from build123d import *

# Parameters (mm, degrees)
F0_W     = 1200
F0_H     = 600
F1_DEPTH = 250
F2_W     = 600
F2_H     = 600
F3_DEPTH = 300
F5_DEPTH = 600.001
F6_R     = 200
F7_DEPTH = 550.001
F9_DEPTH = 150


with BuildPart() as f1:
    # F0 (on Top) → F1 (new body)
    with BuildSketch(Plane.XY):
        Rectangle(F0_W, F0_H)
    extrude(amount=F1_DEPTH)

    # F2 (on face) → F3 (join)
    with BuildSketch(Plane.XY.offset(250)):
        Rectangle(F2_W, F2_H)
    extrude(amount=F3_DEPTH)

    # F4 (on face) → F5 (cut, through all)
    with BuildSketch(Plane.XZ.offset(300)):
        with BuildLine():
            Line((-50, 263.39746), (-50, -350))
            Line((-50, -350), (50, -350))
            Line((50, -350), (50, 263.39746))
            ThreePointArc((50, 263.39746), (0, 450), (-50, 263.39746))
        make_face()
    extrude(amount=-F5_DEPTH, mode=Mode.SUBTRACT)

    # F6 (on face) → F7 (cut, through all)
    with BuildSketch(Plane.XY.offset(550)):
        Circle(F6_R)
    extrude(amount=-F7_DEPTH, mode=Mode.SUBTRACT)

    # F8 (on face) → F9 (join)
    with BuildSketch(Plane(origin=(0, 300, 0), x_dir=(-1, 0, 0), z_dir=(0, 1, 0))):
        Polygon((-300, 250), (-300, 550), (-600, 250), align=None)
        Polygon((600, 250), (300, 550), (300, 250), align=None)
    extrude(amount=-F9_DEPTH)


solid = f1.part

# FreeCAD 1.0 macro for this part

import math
import FreeCAD as App
import Part
import Sketcher


def add_polygon(sketch, points):
    """Adds a closed chain of lines whose ends are joined by coincident constraints."""
    first, n = sketch.GeometryCount, len(points)
    for a, b in zip(points, points[1:] + points[:1]):
        sketch.addGeometry(Part.LineSegment(App.Vector(*a, 0), App.Vector(*b, 0)), False)
    for i in range(n):
        sketch.addConstraint(Sketcher.Constraint("Coincident", first + i, 2, first + (i + 1) % n, 1))

doc = App.newDocument("Part")
body = doc.addObject("PartDesign::Body", "Body")

sketch1 = doc.addObject("Sketcher::SketchObject", "Sketch")
body.addObject(sketch1)
sketch1.AttachmentSupport = (doc.XY_Plane, [""])
sketch1.MapMode = "FlatFace"
add_polygon(sketch1, [(-600, 300), (-600, -300), (600, -300), (600, 300)])
sketch1.addConstraint(Sketcher.Constraint("Vertical", 0))
sketch1.addConstraint(Sketcher.Constraint("Horizontal", 1))
sketch1.addConstraint(Sketcher.Constraint("Vertical", 2))
sketch1.addConstraint(Sketcher.Constraint("Horizontal", 3))
sketch1.addConstraint(Sketcher.Constraint("Symmetric", 0, 2, 2, 2, -1, 1))
sketch1.addConstraint(Sketcher.Constraint("DistanceX", 1, 1, 1, 2, 1200.0))
sketch1.addConstraint(Sketcher.Constraint("DistanceY", 0, 2, 0, 1, 600.0))
pad1 = doc.addObject("PartDesign::Pad", "Pad")
body.addObject(pad1)
pad1.Profile = sketch1
pad1.Length = 250

sketch2 = doc.addObject("Sketcher::SketchObject", "Sketch001")
body.addObject(sketch2)
sketch2.AttachmentSupport = (doc.XY_Plane, [""])
sketch2.MapMode = "FlatFace"
sketch2.AttachmentOffset = App.Placement(App.Vector(0, 0, 250), App.Rotation())
add_polygon(sketch2, [(-300, 300), (-300, -300), (300, -300), (300, 300)])
sketch2.addConstraint(Sketcher.Constraint("Vertical", 0))
sketch2.addConstraint(Sketcher.Constraint("Horizontal", 1))
sketch2.addConstraint(Sketcher.Constraint("Vertical", 2))
sketch2.addConstraint(Sketcher.Constraint("Horizontal", 3))
sketch2.addConstraint(Sketcher.Constraint("Symmetric", 0, 2, 2, 2, -1, 1))
sketch2.addConstraint(Sketcher.Constraint("Equal", 3, 0))
sketch2.addConstraint(Sketcher.Constraint("DistanceX", 1, 1, 1, 2, 600.0))
pad2 = doc.addObject("PartDesign::Pad", "Pad001")
body.addObject(pad2)
pad2.Profile = sketch2
pad2.Length = 300

sketch3 = doc.addObject("Sketcher::SketchObject", "Sketch002")
body.addObject(sketch3)
sketch3.AttachmentSupport = (doc.XZ_Plane, [""])
sketch3.MapMode = "FlatFace"
sketch3.AttachmentOffset = App.Placement(App.Vector(0, 0, 300), App.Rotation())
sketch3.addGeometry(Part.LineSegment(App.Vector(-50, 263, 0), App.Vector(-50, -350, 0)), False)
sketch3.addGeometry(Part.LineSegment(App.Vector(-50, -350, 0), App.Vector(50, -350, 0)), False)
sketch3.addGeometry(Part.LineSegment(App.Vector(50, -350, 0), App.Vector(50, 263, 0)), False)
sketch3.addGeometry(Part.ArcOfCircle(Part.Circle(App.Vector(0, 350, 0), App.Vector(0, 0, 1), 100), math.radians(-60), math.radians(240)), False)
sketch3.addConstraint(Sketcher.Constraint("Coincident", 0, 2, 1, 1))
sketch3.addConstraint(Sketcher.Constraint("Coincident", 1, 2, 2, 1))
sketch3.addConstraint(Sketcher.Constraint("Coincident", 2, 2, 3, 1))
sketch3.addConstraint(Sketcher.Constraint("Coincident", 3, 2, 0, 1))
sketch3.addConstraint(Sketcher.Constraint("Vertical", 0))
sketch3.addConstraint(Sketcher.Constraint("Horizontal", 1))
sketch3.addConstraint(Sketcher.Constraint("Vertical", 2))
sketch3.addConstraint(Sketcher.Constraint("Symmetric", 2, 2, 3, 2, -2))
sketch3.addConstraint(Sketcher.Constraint("Radius", 3, 100.0))
sketch3.addConstraint(Sketcher.Constraint("DistanceX", 1, 1, 1, 2, 100.0))
sketch3.addConstraint(Sketcher.Constraint("DistanceY", -1, 1, 3, 3, 350.0))
sketch3.addConstraint(Sketcher.Constraint("DistanceY", 0, 2, -1, 1, 350.0))
pocket1 = doc.addObject("PartDesign::Pocket", "Pocket")
body.addObject(pocket1)
pocket1.Profile = sketch3
pocket1.Type = "ThroughAll"

sketch4 = doc.addObject("Sketcher::SketchObject", "Sketch003")
body.addObject(sketch4)
sketch4.AttachmentSupport = (doc.XY_Plane, [""])
sketch4.MapMode = "FlatFace"
sketch4.AttachmentOffset = App.Placement(App.Vector(0, 0, 550), App.Rotation())
sketch4.addGeometry(Part.Circle(App.Vector(0, 0, 0), App.Vector(0, 0, 1), 200), False)
sketch4.addConstraint(Sketcher.Constraint("Coincident", 0, 3, -1, 1))
sketch4.addConstraint(Sketcher.Constraint("Diameter", 0, 400.0))
pocket2 = doc.addObject("PartDesign::Pocket", "Pocket001")
body.addObject(pocket2)
pocket2.Profile = sketch4
pocket2.Type = "ThroughAll"

sketch5 = doc.addObject("Sketcher::SketchObject", "Sketch004")
body.addObject(sketch5)
sketch5.AttachmentSupport = (doc.XZ_Plane, [""])
sketch5.MapMode = "FlatFace"
sketch5.AttachmentOffset = App.Placement(App.Vector(0, 0, -300), App.Rotation())
add_polygon(sketch5, [(300, 250), (300, 550), (600, 250)])
add_polygon(sketch5, [(-600, 250), (-300, 550), (-300, 250)])
sketch5.addConstraint(Sketcher.Constraint("Vertical", 0))
sketch5.addConstraint(Sketcher.Constraint("Horizontal", 2))
sketch5.addConstraint(Sketcher.Constraint("Vertical", 4))
sketch5.addConstraint(Sketcher.Constraint("Horizontal", 5))
sketch5.addConstraint(Sketcher.Constraint("Symmetric", 0, 2, 3, 2, -2))
sketch5.addConstraint(Sketcher.Constraint("Symmetric", 1, 2, 5, 2, -2))
sketch5.addConstraint(Sketcher.Constraint("Perpendicular", 1, 3))
sketch5.addConstraint(Sketcher.Constraint("DistanceX", 2, 2, 2, 1, 300.0))
sketch5.addConstraint(Sketcher.Constraint("DistanceX", -1, 1, 0, 2, 300.0))
sketch5.addConstraint(Sketcher.Constraint("DistanceY", -1, 1, 0, 2, 550.0))
pad3 = doc.addObject("PartDesign::Pad", "Pad002")
body.addObject(pad3)
pad3.Profile = sketch5
pad3.Length = 150

doc.recompute()
